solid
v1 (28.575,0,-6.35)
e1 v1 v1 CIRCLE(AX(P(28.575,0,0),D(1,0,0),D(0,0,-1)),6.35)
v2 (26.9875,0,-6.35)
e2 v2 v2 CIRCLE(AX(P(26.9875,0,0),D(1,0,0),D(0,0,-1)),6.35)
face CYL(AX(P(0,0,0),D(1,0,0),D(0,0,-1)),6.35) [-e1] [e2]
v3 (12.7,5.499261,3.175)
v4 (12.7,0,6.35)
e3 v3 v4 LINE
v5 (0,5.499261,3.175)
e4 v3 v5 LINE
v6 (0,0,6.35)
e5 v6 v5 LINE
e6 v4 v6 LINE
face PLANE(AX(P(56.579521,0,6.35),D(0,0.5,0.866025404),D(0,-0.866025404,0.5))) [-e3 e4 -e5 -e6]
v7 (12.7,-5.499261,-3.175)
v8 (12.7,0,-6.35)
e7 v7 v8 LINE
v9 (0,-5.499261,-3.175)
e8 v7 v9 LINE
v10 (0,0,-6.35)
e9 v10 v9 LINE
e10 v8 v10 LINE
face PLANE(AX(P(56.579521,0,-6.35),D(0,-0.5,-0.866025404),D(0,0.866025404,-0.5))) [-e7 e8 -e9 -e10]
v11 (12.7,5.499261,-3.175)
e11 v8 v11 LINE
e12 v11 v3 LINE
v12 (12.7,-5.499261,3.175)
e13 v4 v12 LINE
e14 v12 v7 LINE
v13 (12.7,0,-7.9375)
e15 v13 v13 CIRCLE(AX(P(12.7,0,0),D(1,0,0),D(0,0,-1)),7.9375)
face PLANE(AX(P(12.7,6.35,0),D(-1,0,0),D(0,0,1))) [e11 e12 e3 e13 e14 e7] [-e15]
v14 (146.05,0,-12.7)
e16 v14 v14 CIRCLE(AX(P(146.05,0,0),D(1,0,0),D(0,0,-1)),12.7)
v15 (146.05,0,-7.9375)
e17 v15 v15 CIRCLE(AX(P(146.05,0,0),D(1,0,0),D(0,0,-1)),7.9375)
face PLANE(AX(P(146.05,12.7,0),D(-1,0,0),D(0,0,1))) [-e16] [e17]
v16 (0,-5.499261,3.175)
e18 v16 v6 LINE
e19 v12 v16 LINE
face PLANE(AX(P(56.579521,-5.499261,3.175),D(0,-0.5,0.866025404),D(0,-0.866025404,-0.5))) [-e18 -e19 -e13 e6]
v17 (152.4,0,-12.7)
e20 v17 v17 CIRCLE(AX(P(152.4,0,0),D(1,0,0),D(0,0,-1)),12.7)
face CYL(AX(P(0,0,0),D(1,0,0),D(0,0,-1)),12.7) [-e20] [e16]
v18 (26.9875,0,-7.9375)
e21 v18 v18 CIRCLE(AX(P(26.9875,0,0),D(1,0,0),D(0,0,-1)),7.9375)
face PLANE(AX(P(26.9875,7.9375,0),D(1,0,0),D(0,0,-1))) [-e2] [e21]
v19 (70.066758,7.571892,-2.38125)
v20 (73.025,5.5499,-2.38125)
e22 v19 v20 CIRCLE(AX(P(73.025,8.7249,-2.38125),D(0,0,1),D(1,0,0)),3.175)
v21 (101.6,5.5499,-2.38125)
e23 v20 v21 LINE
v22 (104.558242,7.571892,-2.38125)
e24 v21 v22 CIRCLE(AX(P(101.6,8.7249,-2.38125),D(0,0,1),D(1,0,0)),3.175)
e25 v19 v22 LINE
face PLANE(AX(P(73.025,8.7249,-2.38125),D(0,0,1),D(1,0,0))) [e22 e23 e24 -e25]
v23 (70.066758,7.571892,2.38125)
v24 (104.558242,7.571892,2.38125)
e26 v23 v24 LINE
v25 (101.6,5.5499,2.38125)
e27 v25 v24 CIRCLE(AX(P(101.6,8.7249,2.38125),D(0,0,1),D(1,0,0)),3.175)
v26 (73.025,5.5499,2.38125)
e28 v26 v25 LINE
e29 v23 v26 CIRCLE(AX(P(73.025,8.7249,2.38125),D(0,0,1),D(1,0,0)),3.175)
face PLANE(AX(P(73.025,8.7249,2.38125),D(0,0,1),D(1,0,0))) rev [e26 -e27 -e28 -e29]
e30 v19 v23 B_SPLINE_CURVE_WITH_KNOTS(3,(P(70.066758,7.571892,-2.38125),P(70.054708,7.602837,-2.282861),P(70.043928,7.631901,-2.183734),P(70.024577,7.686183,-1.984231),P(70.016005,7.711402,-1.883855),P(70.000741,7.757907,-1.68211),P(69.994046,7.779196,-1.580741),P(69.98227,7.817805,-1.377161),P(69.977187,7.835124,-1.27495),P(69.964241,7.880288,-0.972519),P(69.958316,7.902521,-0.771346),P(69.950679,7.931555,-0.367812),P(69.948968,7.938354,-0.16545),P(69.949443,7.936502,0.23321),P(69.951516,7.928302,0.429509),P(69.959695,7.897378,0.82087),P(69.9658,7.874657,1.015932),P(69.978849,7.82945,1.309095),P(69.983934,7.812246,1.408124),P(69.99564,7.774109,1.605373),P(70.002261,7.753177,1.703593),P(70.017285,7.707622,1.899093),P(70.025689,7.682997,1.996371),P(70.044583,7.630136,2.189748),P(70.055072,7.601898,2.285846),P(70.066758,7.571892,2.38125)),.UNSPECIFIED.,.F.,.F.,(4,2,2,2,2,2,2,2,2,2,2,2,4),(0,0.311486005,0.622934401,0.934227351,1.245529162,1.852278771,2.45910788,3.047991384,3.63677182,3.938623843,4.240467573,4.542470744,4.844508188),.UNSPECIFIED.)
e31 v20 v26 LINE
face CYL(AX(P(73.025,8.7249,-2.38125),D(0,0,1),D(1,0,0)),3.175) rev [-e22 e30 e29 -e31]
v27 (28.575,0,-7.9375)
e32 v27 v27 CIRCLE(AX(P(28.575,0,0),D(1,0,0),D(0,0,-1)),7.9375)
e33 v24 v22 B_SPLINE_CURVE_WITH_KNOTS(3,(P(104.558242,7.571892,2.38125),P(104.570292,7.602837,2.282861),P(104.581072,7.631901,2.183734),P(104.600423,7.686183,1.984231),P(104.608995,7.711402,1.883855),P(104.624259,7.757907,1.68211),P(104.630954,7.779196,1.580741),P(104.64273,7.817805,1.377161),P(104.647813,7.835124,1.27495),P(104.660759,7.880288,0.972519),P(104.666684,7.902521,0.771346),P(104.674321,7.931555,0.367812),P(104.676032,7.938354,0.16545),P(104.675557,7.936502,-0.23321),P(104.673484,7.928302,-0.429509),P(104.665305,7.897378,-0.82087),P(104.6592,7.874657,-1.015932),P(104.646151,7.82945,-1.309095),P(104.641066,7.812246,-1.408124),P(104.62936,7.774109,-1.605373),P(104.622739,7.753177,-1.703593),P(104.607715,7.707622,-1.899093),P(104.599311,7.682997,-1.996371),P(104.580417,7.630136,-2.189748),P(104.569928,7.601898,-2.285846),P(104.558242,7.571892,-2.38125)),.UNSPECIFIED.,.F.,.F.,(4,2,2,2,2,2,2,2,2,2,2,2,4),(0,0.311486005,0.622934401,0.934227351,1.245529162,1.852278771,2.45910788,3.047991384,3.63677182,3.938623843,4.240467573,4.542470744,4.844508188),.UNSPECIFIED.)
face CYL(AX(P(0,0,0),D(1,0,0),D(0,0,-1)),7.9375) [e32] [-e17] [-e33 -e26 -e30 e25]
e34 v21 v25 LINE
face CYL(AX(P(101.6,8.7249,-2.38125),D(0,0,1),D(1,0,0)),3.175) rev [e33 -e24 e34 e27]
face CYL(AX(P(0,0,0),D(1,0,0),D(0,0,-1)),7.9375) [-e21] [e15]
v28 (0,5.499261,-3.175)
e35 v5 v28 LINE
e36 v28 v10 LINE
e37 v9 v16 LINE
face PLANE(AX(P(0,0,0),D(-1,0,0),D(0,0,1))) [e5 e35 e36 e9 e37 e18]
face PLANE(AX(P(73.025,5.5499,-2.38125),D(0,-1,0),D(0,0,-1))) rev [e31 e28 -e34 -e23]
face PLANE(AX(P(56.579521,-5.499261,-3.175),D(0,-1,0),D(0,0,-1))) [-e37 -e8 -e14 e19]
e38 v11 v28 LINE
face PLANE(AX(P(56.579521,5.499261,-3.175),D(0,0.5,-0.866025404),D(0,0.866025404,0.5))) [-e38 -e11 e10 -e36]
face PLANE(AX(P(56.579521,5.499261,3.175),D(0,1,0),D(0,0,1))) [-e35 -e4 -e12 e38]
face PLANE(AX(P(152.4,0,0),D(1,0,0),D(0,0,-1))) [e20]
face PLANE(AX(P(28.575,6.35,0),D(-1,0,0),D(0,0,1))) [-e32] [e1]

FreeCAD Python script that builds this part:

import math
import FreeCAD as App
import Part
import Sketcher
from FreeCAD import Vector
Q = App.Units.Quantity

doc = App.newDocument("Part")
body = doc.addObject("PartDesign::Body", "Body")

# Sketch on XY plane
sketch1 = body.newObject("Sketcher::SketchObject", "Sketch")
sketch1.AttachmentSupport = (doc.getObject("XY_Plane"), [""])
sketch1.MapMode = "FlatFace"
sketch1.addGeometry(Part.LineSegment(Vector(0, 6.35, 0), Vector(0, 0, 0)), False)
sketch1.addGeometry(Part.LineSegment(Vector(0, 0, 0), Vector(152.4, 0, 0)), False)
sketch1.addGeometry(Part.LineSegment(Vector(152.4, 0, 0), Vector(152.4, 12.7, 0)), False)
sketch1.addGeometry(Part.LineSegment(Vector(152.4, 12.7, 0), Vector(146.05, 12.7, 0)), False)
sketch1.addGeometry(Part.LineSegment(Vector(146.05, 12.7, 0), Vector(146.05, 7.9375, 0)), False)
sketch1.addGeometry(Part.LineSegment(Vector(146.05, 7.9375, 0), Vector(28.575, 7.9375, 0)), False)
sketch1.addGeometry(Part.LineSegment(Vector(28.575, 7.9375, 0), Vector(28.575, 6.35, 0)), False)
sketch1.addGeometry(Part.LineSegment(Vector(28.575, 6.35, 0), Vector(26.9875, 6.35, 0)), False)
sketch1.addGeometry(Part.LineSegment(Vector(26.9875, 6.35, 0), Vector(26.9875, 7.9375, 0)), False)
sketch1.addGeometry(Part.LineSegment(Vector(26.9875, 7.9375, 0), Vector(12.7, 7.9375, 0)), False)
sketch1.addGeometry(Part.LineSegment(Vector(12.7, 7.9375, 0), Vector(12.7, 6.35, 0)), False)
sketch1.addGeometry(Part.LineSegment(Vector(12.7, 6.35, 0), Vector(0, 6.35, 0)), False)
sketch1.addConstraint(Sketcher.Constraint("Coincident", 0, 2, 1, 1))
sketch1.addConstraint(Sketcher.Constraint("Coincident", 1, 2, 2, 1))
sketch1.addConstraint(Sketcher.Constraint("Coincident", 2, 2, 3, 1))
sketch1.addConstraint(Sketcher.Constraint("Coincident", 3, 2, 4, 1))
sketch1.addConstraint(Sketcher.Constraint("Coincident", 4, 2, 5, 1))
sketch1.addConstraint(Sketcher.Constraint("Coincident", 5, 2, 6, 1))
sketch1.addConstraint(Sketcher.Constraint("Coincident", 6, 2, 7, 1))
sketch1.addConstraint(Sketcher.Constraint("Coincident", 7, 2, 8, 1))
sketch1.addConstraint(Sketcher.Constraint("Coincident", 8, 2, 9, 1))
sketch1.addConstraint(Sketcher.Constraint("Coincident", 9, 2, 10, 1))
sketch1.addConstraint(Sketcher.Constraint("Coincident", 10, 2, 11, 1))
sketch1.addConstraint(Sketcher.Constraint("Coincident", 11, 2, 0, 1))
sketch1.addConstraint(Sketcher.Constraint("Vertical", 0))
sketch1.addConstraint(Sketcher.Constraint("Horizontal", 1))
sketch1.addConstraint(Sketcher.Constraint("Vertical", 2))
sketch1.addConstraint(Sketcher.Constraint("Horizontal", 3))
sketch1.addConstraint(Sketcher.Constraint("Vertical", 4))
sketch1.addConstraint(Sketcher.Constraint("Horizontal", 5))
sketch1.addConstraint(Sketcher.Constraint("Vertical", 6))
sketch1.addConstraint(Sketcher.Constraint("Horizontal", 7))
sketch1.addConstraint(Sketcher.Constraint("Vertical", 8))
sketch1.addConstraint(Sketcher.Constraint("Horizontal", 9))
sketch1.addConstraint(Sketcher.Constraint("Vertical", 10))
sketch1.addConstraint(Sketcher.Constraint("Horizontal", 11))
sketch1.addConstraint(Sketcher.Constraint("Coincident", 0, 2, -1, 1))
sketch1.addConstraint(Sketcher.Constraint("Horizontal", 5, 2, 8, 2))
sketch1.addConstraint(Sketcher.Constraint("Horizontal", 7, 2, 10, 2))
sketch1.addConstraint(Sketcher.Constraint("Equal", 3, 0))
sketch1.addConstraint(Sketcher.Constraint("Equal", 11, 2))
sketch1.addConstraint(Sketcher.Constraint("Equal", 7, 6))
sketch1.addConstraint(Sketcher.Constraint("DistanceX", 1, 1, 1, 2, Q("6 in")))
sketch1.addConstraint(Sketcher.Constraint("DistanceX", 11, 2, 11, 1, Q("0.5 in")))
sketch1.addConstraint(Sketcher.Constraint("DistanceX", 3, 2, 3, 1, Q("0.25 in")))
sketch1.addConstraint(Sketcher.Constraint("DistanceX", 5, 2, 5, 1, Q("4.625 in")))
sketch1.addConstraint(Sketcher.Constraint("DistanceX", 7, 2, 7, 1, Q("0.0625 in")))
revolution = body.newObject("PartDesign::Revolution", "Revolution")
revolution.Profile = sketch1
revolution.ReferenceAxis = (sketch1, ["H_Axis"])
revolution.Angle = 360

# Sketch on XY plane
sketch2 = body.newObject("Sketcher::SketchObject", "Sketch001")
sketch2.AttachmentSupport = (doc.getObject("XY_Plane"), [""])
sketch2.MapMode = "FlatFace"
sketch2.addGeometry(Part.LineSegment(Vector(69.85, 14.2875, 0), Vector(69.85, 8.7249, 0)), False)
sketch2.addGeometry(Part.ArcOfCircle(Part.Circle(Vector(73.025, 8.7249, 0), Vector(0, 0, 1), 3.175), math.radians(-180), math.radians(-90)), False)
sketch2.addGeometry(Part.LineSegment(Vector(73.025, 5.5499, 0), Vector(101.6, 5.5499, 0)), False)
sketch2.addGeometry(Part.ArcOfCircle(Part.Circle(Vector(101.6, 8.7249, 0), Vector(0, 0, 1), 3.175), math.radians(-90), math.radians(0)), False)
sketch2.addGeometry(Part.LineSegment(Vector(104.775, 8.7249, 0), Vector(104.775, 14.2875, 0)), False)
sketch2.addGeometry(Part.LineSegment(Vector(104.775, 14.2875, 0), Vector(69.85, 14.2875, 0)), False)
sketch2.addConstraint(Sketcher.Constraint("Tangent", 0, 2, 1, 1))
sketch2.addConstraint(Sketcher.Constraint("Tangent", 1, 2, 2, 1))
sketch2.addConstraint(Sketcher.Constraint("Tangent", 2, 2, 3, 1))
sketch2.addConstraint(Sketcher.Constraint("Tangent", 3, 2, 4, 1))
sketch2.addConstraint(Sketcher.Constraint("Coincident", 4, 2, 5, 1))
sketch2.addConstraint(Sketcher.Constraint("Coincident", 5, 2, 0, 1))
sketch2.addConstraint(Sketcher.Constraint("Vertical", 0))
sketch2.addConstraint(Sketcher.Constraint("Horizontal", 2))
sketch2.addConstraint(Sketcher.Constraint("Vertical", 4))
sketch2.addConstraint(Sketcher.Constraint("Horizontal", 5))
sketch2.addConstraint(Sketcher.Constraint("Equal", 1, 3))
sketch2.addConstraint(Sketcher.Constraint("DistanceX", -1, 1, 3, 3, Q("4 in")))
sketch2.addConstraint(Sketcher.Constraint("Radius", 1, Q("0.125 in")))
sketch2.addConstraint(Sketcher.Constraint("DistanceX", 2, 1, 2, 2, Q("1.125 in")))
sketch2.addConstraint(Sketcher.Constraint("DistanceY", 0, 2, 0, 1, Q("0.219 in")))
sketch2.addConstraint(Sketcher.Constraint("DistanceY", -1, 1, 4, 2, Q("0.5625 in")))
pocket1 = body.newObject("PartDesign::Pocket", "Pocket")
pocket1.Profile = sketch2
pocket1.Length = Q("0.1875 in")
pocket1.Midplane = True

# Sketch on YZ plane
sketch3 = body.newObject("Sketcher::SketchObject", "Sketch002")
sketch3.AttachmentSupport = (doc.getObject("YZ_Plane"), [""])
sketch3.MapMode = "FlatFace"
sketch3.addGeometry(Part.LineSegment(Vector(29.358, -29.358, 0), Vector(-29.358, -29.358, 0)), False)
sketch3.addGeometry(Part.LineSegment(Vector(-29.358, -29.358, 0), Vector(-29.358, 29.358, 0)), False)
sketch3.addGeometry(Part.LineSegment(Vector(-29.358, 29.358, 0), Vector(29.358, 29.358, 0)), False)
sketch3.addGeometry(Part.LineSegment(Vector(29.358, 29.358, 0), Vector(29.358, -29.358, 0)), False)
sketch3.addGeometry(Part.LineSegment(Vector(5.499261, -3.175, 0), Vector(5.499261, 3.175, 0)), False)
sketch3.addGeometry(Part.LineSegment(Vector(5.499261, 3.175, 0), Vector(0, 6.35, 0)), False)
sketch3.addGeometry(Part.LineSegment(Vector(0, 6.35, 0), Vector(-5.499261, 3.175, 0)), False)
sketch3.addGeometry(Part.LineSegment(Vector(-5.499261, 3.175, 0), Vector(-5.499261, -3.175, 0)), False)
sketch3.addGeometry(Part.LineSegment(Vector(-5.499261, -3.175, 0), Vector(0, -6.35, 0)), False)
sketch3.addGeometry(Part.LineSegment(Vector(0, -6.35, 0), Vector(5.499261, -3.175, 0)), False)
sketch3.addConstraint(Sketcher.Constraint("Coincident", 0, 2, 1, 1))
sketch3.addConstraint(Sketcher.Constraint("Coincident", 1, 2, 2, 1))
sketch3.addConstraint(Sketcher.Constraint("Coincident", 2, 2, 3, 1))
sketch3.addConstraint(Sketcher.Constraint("Coincident", 3, 2, 0, 1))
sketch3.addConstraint(Sketcher.Constraint("Coincident", 4, 2, 5, 1))
sketch3.addConstraint(Sketcher.Constraint("Coincident", 5, 2, 6, 1))
sketch3.addConstraint(Sketcher.Constraint("Coincident", 6, 2, 7, 1))
sketch3.addConstraint(Sketcher.Constraint("Coincident", 7, 2, 8, 1))
sketch3.addConstraint(Sketcher.Constraint("Coincident", 8, 2, 9, 1))
sketch3.addConstraint(Sketcher.Constraint("Coincident", 9, 2, 4, 1))
sketch3.addConstraint(Sketcher.Constraint("Horizontal", 0))
sketch3.addConstraint(Sketcher.Constraint("Vertical", 1))
sketch3.addConstraint(Sketcher.Constraint("Horizontal", 2))
sketch3.addConstraint(Sketcher.Constraint("Vertical", 3))
sketch3.addConstraint(Sketcher.Constraint("Vertical", 4))
sketch3.addConstraint(Sketcher.Constraint("Vertical", 7))
sketch3.addConstraint(Sketcher.Constraint("Symmetric", 0, 2, 2, 2, -1, 1))
sketch3.addConstraint(Sketcher.Constraint("Symmetric", 4, 2, 7, 2, -1, 1))
sketch3.addConstraint(Sketcher.Constraint("Symmetric", 5, 2, 8, 2, -1, 1))
sketch3.addConstraint(Sketcher.Constraint("PointOnObject", 5, 2, -2))
sketch3.addConstraint(Sketcher.Constraint("Parallel", 6, 9))
sketch3.addConstraint(Sketcher.Constraint("Horizontal", 4, 2, 6, 2))
sketch3.addConstraint(Sketcher.Constraint("Equal", 2, 1))
sketch3.addConstraint(Sketcher.Constraint("Angle", 5, Q("150 deg")))
sketch3.addConstraint(Sketcher.Constraint("DistanceY", 4, 1, 4, 2, Q("0.25 in")))
sketch3.addConstraint(Sketcher.Constraint("DistanceY", 8, 2, 5, 2, Q("0.5 in")))
sketch3.addConstraint(Sketcher.Constraint("DistanceX", 0, 2, 0, 1, Q("58.716 mm")))
pocket2 = body.newObject("PartDesign::Pocket", "Pocket001")
pocket2.Profile = sketch3
pocket2.Length = Q("0.5 in")
pocket2.Reversed = True

doc.recompute()
